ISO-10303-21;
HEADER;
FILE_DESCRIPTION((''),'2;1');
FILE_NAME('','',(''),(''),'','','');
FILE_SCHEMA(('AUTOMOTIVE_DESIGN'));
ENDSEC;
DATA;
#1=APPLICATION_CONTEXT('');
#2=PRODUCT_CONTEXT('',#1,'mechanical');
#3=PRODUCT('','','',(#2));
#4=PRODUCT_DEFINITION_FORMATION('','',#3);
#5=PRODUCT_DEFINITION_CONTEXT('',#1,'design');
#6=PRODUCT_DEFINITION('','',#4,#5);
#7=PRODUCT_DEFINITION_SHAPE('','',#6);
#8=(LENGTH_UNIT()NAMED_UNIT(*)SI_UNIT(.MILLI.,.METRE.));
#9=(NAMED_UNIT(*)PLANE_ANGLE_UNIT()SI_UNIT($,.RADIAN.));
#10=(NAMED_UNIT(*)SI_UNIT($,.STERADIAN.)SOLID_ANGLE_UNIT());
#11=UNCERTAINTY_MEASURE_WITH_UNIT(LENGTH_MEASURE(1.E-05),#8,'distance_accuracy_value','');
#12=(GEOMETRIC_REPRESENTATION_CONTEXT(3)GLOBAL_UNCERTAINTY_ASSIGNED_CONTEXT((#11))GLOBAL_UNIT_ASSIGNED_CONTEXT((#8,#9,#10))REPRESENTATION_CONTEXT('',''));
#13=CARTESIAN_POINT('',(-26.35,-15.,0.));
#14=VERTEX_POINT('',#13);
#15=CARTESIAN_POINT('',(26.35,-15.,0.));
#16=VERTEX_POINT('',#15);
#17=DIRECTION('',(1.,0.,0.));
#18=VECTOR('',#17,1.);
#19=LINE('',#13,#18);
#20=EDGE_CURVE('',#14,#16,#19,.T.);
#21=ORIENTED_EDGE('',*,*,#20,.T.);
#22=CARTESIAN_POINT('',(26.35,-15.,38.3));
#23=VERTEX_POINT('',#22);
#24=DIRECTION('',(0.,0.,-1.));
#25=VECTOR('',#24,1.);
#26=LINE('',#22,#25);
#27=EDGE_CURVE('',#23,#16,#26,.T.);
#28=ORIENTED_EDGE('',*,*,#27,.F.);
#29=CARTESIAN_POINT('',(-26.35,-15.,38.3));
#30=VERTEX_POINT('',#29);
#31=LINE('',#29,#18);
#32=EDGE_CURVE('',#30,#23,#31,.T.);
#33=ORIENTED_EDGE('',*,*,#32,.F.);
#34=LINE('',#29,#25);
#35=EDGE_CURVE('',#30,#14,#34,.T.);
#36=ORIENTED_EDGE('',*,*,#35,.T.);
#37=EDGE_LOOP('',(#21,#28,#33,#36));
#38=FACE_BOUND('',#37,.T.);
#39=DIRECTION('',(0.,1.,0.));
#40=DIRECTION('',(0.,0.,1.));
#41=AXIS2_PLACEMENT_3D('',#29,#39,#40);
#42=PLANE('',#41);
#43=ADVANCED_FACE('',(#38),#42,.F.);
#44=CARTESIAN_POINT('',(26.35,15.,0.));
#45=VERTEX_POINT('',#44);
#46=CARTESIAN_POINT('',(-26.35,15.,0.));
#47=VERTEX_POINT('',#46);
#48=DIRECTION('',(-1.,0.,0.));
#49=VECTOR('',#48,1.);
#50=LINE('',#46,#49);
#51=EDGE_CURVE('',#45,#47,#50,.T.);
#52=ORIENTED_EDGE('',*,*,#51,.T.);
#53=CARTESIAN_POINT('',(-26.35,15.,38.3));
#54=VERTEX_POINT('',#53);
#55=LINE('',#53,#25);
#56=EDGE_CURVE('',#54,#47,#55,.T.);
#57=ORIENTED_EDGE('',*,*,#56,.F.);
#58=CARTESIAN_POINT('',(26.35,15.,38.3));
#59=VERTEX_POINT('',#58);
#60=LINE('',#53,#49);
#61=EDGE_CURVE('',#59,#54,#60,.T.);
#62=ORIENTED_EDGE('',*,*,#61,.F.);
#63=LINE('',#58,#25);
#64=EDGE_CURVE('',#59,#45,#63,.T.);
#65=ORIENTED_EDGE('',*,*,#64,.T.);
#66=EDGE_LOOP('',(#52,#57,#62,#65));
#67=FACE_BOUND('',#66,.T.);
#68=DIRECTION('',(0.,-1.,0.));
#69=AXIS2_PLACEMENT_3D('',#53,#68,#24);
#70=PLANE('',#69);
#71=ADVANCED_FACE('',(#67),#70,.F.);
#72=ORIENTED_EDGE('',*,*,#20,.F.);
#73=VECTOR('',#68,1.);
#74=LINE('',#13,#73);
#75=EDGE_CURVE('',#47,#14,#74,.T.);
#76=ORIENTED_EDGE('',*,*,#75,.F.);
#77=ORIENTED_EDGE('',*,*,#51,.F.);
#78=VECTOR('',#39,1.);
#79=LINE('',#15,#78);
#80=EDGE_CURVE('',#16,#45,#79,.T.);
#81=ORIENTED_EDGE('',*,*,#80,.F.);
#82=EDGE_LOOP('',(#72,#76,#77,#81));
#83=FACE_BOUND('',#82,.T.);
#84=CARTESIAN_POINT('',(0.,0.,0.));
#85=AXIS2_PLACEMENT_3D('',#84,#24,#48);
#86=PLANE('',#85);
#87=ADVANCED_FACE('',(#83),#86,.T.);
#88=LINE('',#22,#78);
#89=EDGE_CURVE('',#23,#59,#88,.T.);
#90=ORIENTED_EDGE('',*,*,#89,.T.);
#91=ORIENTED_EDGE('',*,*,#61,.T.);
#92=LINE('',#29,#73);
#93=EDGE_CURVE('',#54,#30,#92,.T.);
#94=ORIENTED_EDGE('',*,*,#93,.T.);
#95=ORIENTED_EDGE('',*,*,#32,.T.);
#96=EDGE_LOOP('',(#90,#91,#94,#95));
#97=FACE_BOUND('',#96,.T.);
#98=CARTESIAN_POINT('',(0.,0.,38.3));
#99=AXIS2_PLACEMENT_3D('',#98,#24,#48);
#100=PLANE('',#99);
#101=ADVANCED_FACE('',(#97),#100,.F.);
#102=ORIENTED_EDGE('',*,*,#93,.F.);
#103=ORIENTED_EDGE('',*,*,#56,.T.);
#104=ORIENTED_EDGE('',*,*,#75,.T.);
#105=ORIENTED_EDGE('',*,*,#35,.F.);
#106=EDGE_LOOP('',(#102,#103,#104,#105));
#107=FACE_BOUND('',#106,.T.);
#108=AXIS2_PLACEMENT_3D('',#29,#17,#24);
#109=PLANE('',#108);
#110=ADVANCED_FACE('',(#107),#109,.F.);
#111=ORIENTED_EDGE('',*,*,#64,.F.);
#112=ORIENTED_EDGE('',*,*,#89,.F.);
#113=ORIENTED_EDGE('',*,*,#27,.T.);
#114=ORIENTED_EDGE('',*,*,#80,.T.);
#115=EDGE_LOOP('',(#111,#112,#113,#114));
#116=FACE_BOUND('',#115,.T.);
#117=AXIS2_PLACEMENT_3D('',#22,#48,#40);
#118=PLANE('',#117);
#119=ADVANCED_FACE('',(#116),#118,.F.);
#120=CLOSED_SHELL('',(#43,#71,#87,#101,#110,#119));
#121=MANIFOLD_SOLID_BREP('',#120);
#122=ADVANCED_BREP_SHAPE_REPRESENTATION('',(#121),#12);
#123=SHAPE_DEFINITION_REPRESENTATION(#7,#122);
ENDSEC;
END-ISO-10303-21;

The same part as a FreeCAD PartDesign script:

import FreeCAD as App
import Part
import Sketcher
from FreeCAD import Vector

doc = App.newDocument("Part")
body = doc.addObject("PartDesign::Body", "Body")

# Sketch on XY plane
sketch1 = doc.addObject("Sketcher::SketchObject", "Sketch")
body.addObject(sketch1)
sketch1.AttachmentSupport = (doc.XY_Plane, [""])
sketch1.MapMode = "FlatFace"
sketch1.addGeometry([
    Part.LineSegment(Vector(-26, 15, 0), Vector(-26, -15, 0)),
    Part.LineSegment(Vector(-26, -15, 0), Vector(26, -15, 0)),
    Part.LineSegment(Vector(26, -15, 0), Vector(26, 15, 0)),
    Part.LineSegment(Vector(26, 15, 0), Vector(-26, 15, 0)),
], False)
sketch1.addConstraint([
    Sketcher.Constraint("Coincident", 0, 2, 1, 1),
    Sketcher.Constraint("Coincident", 1, 2, 2, 1),
    Sketcher.Constraint("Coincident", 2, 2, 3, 1),
    Sketcher.Constraint("Coincident", 3, 2, 0, 1),
    Sketcher.Constraint("Vertical", 0),
    Sketcher.Constraint("Horizontal", 1),
    Sketcher.Constraint("Vertical", 2),
    Sketcher.Constraint("Horizontal", 3),
    Sketcher.Constraint("Symmetric", 0, 2, 2, 2, -1, 1),
    Sketcher.Constraint("DistanceY", 0, 2, 0, 1, 30.0),
    Sketcher.Constraint("DistanceX", 1, 1, 1, 2, 52.7),
])
pad1 = doc.addObject("PartDesign::Pad", "Pad")
body.addObject(pad1)
pad1.Profile = sketch1
pad1.Length = 38.3

doc.recompute()
